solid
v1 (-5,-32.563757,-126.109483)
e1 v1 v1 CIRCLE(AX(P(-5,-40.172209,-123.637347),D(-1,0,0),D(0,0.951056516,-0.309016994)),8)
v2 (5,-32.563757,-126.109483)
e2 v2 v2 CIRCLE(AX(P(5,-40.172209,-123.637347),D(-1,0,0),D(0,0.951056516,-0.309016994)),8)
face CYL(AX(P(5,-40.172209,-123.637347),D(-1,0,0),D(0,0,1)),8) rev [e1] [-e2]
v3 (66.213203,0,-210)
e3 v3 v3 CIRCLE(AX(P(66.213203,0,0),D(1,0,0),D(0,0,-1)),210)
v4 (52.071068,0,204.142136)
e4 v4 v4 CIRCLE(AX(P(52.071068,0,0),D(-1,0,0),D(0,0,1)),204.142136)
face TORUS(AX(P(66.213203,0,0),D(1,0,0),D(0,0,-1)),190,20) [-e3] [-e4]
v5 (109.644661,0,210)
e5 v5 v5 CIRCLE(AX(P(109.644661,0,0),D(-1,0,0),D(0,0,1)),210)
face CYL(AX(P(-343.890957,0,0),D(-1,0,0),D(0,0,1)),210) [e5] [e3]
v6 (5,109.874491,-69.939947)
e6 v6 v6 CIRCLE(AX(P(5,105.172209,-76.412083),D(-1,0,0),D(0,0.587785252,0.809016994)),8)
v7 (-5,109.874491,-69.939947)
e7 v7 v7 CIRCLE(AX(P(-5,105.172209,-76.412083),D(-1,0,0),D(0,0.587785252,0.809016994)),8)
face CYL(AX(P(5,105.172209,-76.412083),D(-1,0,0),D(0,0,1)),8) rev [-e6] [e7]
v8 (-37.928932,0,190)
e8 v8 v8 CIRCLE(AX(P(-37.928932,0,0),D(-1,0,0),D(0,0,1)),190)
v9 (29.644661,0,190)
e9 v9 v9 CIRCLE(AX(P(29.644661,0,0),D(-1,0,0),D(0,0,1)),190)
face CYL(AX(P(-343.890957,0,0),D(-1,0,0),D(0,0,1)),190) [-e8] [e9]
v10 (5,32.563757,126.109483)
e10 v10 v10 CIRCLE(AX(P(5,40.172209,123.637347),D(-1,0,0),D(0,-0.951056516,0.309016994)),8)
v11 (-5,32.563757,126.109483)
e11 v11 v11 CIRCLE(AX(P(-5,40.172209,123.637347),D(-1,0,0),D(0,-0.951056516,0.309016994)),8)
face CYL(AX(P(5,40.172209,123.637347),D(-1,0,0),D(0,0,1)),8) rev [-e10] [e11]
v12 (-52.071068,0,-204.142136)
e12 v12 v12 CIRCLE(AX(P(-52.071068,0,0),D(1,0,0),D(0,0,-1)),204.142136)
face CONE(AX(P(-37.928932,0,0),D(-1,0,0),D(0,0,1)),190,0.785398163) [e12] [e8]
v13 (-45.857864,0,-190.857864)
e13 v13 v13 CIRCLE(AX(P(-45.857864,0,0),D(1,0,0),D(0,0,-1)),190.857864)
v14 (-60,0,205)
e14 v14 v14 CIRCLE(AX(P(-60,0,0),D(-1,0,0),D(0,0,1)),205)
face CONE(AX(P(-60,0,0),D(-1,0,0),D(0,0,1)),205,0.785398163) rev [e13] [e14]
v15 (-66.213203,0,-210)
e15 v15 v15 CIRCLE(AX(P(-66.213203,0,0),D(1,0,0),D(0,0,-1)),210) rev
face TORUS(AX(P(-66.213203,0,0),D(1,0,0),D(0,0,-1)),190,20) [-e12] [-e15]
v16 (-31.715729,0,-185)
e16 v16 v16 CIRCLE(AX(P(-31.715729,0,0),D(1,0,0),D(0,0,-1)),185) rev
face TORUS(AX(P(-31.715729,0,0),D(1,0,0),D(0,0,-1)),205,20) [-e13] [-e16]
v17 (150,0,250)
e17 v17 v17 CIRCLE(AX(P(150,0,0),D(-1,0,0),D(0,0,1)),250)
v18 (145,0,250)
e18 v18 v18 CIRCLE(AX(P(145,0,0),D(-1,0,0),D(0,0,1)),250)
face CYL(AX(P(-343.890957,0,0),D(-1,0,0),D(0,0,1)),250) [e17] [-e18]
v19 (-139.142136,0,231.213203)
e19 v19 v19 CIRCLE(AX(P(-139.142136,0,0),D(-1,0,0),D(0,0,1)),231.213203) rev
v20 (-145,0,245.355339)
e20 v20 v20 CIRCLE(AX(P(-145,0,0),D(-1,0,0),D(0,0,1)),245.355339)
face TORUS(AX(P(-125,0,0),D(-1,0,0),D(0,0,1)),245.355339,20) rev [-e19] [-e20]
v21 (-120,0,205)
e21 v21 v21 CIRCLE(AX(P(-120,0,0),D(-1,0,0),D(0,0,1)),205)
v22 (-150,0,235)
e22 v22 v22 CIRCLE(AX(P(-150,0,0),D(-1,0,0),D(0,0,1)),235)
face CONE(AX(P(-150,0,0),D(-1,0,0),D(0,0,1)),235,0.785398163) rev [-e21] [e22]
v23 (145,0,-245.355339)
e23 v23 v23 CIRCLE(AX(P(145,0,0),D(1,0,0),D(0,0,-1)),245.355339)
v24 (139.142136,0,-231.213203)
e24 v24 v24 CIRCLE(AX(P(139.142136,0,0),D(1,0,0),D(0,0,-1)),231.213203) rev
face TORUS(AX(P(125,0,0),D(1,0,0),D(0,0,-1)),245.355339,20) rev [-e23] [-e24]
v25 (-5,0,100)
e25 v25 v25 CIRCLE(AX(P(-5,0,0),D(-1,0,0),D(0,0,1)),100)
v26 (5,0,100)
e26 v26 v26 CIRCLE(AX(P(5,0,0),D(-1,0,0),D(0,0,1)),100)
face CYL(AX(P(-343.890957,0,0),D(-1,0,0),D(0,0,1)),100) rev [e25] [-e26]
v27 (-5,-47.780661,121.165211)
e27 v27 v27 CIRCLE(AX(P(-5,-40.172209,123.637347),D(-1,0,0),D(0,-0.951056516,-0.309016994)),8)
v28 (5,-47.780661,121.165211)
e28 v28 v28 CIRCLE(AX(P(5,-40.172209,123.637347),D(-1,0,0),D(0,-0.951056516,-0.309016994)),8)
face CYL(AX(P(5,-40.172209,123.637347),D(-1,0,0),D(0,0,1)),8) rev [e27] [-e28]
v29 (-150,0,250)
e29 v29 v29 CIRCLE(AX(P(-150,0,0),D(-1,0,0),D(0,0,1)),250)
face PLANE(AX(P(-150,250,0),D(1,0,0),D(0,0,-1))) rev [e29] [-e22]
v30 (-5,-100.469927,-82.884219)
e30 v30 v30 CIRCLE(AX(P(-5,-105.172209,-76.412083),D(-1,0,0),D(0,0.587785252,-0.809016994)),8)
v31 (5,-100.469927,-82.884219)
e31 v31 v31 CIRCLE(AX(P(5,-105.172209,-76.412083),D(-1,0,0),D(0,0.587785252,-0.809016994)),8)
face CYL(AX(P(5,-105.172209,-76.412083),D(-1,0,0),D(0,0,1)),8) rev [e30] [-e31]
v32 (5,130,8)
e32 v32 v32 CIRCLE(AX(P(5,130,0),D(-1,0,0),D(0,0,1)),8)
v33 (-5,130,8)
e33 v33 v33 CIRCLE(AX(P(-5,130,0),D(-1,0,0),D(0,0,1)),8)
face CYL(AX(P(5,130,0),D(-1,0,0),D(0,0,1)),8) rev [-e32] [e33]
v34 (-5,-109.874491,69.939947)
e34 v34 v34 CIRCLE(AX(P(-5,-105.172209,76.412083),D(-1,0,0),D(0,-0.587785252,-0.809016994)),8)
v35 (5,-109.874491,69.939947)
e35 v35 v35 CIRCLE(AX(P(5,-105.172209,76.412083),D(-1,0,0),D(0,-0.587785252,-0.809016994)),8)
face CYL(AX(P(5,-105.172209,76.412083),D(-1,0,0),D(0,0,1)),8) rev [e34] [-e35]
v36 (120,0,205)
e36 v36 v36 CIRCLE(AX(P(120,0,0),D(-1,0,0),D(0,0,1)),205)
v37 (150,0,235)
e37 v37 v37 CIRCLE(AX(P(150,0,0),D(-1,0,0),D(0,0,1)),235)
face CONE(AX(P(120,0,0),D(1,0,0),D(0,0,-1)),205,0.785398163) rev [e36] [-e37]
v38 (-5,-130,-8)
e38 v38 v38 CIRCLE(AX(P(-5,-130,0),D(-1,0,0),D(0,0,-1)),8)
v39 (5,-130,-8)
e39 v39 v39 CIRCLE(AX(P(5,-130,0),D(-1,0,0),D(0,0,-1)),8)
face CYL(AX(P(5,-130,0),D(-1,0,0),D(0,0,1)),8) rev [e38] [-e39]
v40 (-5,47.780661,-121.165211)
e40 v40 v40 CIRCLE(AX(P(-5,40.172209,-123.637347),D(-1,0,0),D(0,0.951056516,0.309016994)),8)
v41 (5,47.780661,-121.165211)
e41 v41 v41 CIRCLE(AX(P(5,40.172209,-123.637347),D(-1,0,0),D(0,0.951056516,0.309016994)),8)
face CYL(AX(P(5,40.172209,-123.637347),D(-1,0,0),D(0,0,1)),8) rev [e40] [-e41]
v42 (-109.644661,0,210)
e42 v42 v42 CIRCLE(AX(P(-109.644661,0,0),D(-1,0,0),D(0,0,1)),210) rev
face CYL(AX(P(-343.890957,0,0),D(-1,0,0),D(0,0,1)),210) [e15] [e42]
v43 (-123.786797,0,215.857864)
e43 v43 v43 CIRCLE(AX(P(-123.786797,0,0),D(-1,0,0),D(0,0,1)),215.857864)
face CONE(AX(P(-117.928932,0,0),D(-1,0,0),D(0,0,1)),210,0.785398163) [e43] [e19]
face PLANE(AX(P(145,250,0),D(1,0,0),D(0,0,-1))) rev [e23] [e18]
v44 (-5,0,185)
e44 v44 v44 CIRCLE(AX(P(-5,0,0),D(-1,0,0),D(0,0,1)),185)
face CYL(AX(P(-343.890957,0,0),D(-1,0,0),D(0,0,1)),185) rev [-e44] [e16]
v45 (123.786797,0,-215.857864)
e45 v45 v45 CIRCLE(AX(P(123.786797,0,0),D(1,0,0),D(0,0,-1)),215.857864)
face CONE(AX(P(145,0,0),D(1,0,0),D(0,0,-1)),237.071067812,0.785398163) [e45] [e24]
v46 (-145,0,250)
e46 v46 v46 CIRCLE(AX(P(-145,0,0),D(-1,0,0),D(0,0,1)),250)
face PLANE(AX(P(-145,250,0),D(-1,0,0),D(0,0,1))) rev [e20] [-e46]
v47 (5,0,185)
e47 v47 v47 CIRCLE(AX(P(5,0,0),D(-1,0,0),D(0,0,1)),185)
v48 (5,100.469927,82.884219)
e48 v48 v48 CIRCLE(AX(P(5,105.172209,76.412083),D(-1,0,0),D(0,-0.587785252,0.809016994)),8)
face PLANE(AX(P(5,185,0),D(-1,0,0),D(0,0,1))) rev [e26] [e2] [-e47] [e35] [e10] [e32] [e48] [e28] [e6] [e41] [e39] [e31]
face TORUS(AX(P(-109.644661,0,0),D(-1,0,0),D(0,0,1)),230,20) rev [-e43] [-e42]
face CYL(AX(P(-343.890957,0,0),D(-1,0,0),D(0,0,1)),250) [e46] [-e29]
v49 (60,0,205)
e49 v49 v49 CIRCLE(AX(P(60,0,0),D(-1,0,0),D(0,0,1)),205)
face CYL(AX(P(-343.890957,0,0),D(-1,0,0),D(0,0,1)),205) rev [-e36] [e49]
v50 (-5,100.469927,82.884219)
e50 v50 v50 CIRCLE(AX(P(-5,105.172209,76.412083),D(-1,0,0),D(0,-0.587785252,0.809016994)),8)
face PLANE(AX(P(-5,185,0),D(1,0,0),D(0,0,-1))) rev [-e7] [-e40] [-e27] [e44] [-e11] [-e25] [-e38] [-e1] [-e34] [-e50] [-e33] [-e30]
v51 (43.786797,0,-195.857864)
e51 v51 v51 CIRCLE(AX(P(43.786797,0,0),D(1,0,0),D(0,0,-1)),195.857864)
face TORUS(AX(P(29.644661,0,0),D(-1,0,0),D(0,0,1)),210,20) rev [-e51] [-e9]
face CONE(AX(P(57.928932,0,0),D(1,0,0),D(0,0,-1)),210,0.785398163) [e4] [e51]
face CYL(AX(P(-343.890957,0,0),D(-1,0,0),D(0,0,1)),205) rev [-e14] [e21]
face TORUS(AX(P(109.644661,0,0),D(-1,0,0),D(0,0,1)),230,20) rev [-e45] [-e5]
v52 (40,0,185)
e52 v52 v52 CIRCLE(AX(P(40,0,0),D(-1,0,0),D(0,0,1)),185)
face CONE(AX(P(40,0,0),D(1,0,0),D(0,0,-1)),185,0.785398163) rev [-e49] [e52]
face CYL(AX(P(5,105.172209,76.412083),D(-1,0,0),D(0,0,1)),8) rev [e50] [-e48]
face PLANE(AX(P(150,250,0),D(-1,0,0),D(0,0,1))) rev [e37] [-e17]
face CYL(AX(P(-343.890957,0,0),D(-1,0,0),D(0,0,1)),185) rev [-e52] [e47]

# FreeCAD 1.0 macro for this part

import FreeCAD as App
import Part
import Sketcher


def edges_at(feature, points):
    """Names of the edges that pass closest to the given points."""
    edges = feature.Shape.Edges
    near = lambda p: min(range(len(edges)), key=lambda i: edges[i].distToShape(Part.Vertex(*p))[0])
    return sorted({f"Edge{near(p) + 1}" for p in points})

doc = App.newDocument("Part")
body = doc.addObject("PartDesign::Body", "Body")

sketch1 = body.newObject("Sketcher::SketchObject", "Sketch")
sketch1.AttachmentSupport = (doc.getObject("XY_Plane"), [""])
sketch1.MapMode = "FlatFace"
sketch1.addGeometry([
    Part.LineSegment(App.Vector(-150, 250, 0), App.Vector(-150, 235, 0)),
    Part.LineSegment(App.Vector(-150, 235, 0), App.Vector(-120, 205, 0)),
    Part.LineSegment(App.Vector(-120, 205, 0), App.Vector(-60, 205, 0)),
    Part.LineSegment(App.Vector(-60, 205, 0), App.Vector(-40, 185, 0)),
    Part.LineSegment(App.Vector(-40, 185, 0), App.Vector(-5, 185, 0)),
    Part.LineSegment(App.Vector(-5, 185, 0), App.Vector(-5, 100, 0)),
    Part.LineSegment(App.Vector(-5, 100, 0), App.Vector(5, 100, 0)),
    Part.LineSegment(App.Vector(5, 100, 0), App.Vector(5, 185, 0)),
    Part.LineSegment(App.Vector(5, 185, 0), App.Vector(40, 185, 0)),
    Part.LineSegment(App.Vector(40, 185, 0), App.Vector(60, 205, 0)),
    Part.LineSegment(App.Vector(60, 205, 0), App.Vector(120, 205, 0)),
    Part.LineSegment(App.Vector(120, 205, 0), App.Vector(150, 235, 0)),
    Part.LineSegment(App.Vector(150, 235, 0), App.Vector(150, 250, 0)),
    Part.LineSegment(App.Vector(150, 250, 0), App.Vector(145, 250, 0)),
    Part.LineSegment(App.Vector(145, 250, 0), App.Vector(145, 237, 0)),
    Part.LineSegment(App.Vector(145, 237, 0), App.Vector(118, 210, 0)),
    Part.LineSegment(App.Vector(118, 210, 0), App.Vector(58, 210, 0)),
    Part.LineSegment(App.Vector(58, 210, 0), App.Vector(38, 190, 0)),
    Part.LineSegment(App.Vector(38, 190, 0), App.Vector(-38, 190, 0)),
    Part.LineSegment(App.Vector(-38, 190, 0), App.Vector(-58, 210, 0)),
    Part.LineSegment(App.Vector(-58, 210, 0), App.Vector(-118, 210, 0)),
    Part.LineSegment(App.Vector(-118, 210, 0), App.Vector(-145, 237, 0)),
    Part.LineSegment(App.Vector(-145, 237, 0), App.Vector(-145, 250, 0)),
    Part.LineSegment(App.Vector(-145, 250, 0), App.Vector(-150, 250, 0)),
], False)
sketch1.addConstraint([
    Sketcher.Constraint("Coincident", 0, 2, 1, 1),
    Sketcher.Constraint("Coincident", 1, 2, 2, 1),
    Sketcher.Constraint("Coincident", 2, 2, 3, 1),
    Sketcher.Constraint("Coincident", 3, 2, 4, 1),
    Sketcher.Constraint("Coincident", 4, 2, 5, 1),
    Sketcher.Constraint("Coincident", 5, 2, 6, 1),
    Sketcher.Constraint("Coincident", 6, 2, 7, 1),
    Sketcher.Constraint("Coincident", 7, 2, 8, 1),
    Sketcher.Constraint("Coincident", 8, 2, 9, 1),
    Sketcher.Constraint("Coincident", 9, 2, 10, 1),
    Sketcher.Constraint("Coincident", 10, 2, 11, 1),
    Sketcher.Constraint("Coincident", 11, 2, 12, 1),
    Sketcher.Constraint("Coincident", 12, 2, 13, 1),
    Sketcher.Constraint("Coincident", 13, 2, 14, 1),
    Sketcher.Constraint("Coincident", 14, 2, 15, 1),
    Sketcher.Constraint("Coincident", 15, 2, 16, 1),
    Sketcher.Constraint("Coincident", 16, 2, 17, 1),
    Sketcher.Constraint("Coincident", 17, 2, 18, 1),
    Sketcher.Constraint("Coincident", 18, 2, 19, 1),
    Sketcher.Constraint("Coincident", 19, 2, 20, 1),
    Sketcher.Constraint("Coincident", 20, 2, 21, 1),
    Sketcher.Constraint("Coincident", 21, 2, 22, 1),
    Sketcher.Constraint("Coincident", 22, 2, 23, 1),
    Sketcher.Constraint("Coincident", 23, 2, 0, 1),
    Sketcher.Constraint("Vertical", 0),
    Sketcher.Constraint("Horizontal", 2),
    Sketcher.Constraint("Horizontal", 4),
    Sketcher.Constraint("Vertical", 5),
    Sketcher.Constraint("Horizontal", 6),
    Sketcher.Constraint("Vertical", 7),
    Sketcher.Constraint("Horizontal", 8),
    Sketcher.Constraint("Horizontal", 10),
    Sketcher.Constraint("Vertical", 12),
    Sketcher.Constraint("Horizontal", 13),
    Sketcher.Constraint("Vertical", 14),
    Sketcher.Constraint("Horizontal", 16),
    Sketcher.Constraint("Horizontal", 18),
    Sketcher.Constraint("Horizontal", 20),
    Sketcher.Constraint("Vertical", 22),
    Sketcher.Constraint("Horizontal", 23),
    Sketcher.Constraint("Symmetric", 4, 2, 7, 2, -2),
    Sketcher.Constraint("Symmetric", 2, 2, 9, 2, -2),
    Sketcher.Constraint("Symmetric", 0, 2, 11, 2, -2),
    Sketcher.Constraint("Symmetric", 16, 2, 19, 2, -2),
    Sketcher.Constraint("Symmetric", 14, 2, 21, 2, -2),
    Sketcher.Constraint("Parallel", 1, 3),
    Sketcher.Constraint("Perpendicular", 3, 9),
    Sketcher.Constraint("Parallel", 9, 11),
    Sketcher.Constraint("Parallel", 11, 15),
    Sketcher.Constraint("Parallel", 15, 17),
    Sketcher.Constraint("Perpendicular", 17, 19),
    Sketcher.Constraint("Parallel", 19, 21),
    Sketcher.Constraint("Horizontal", 13, 2, 22, 2),
    Sketcher.Constraint("Equal", 4, 8),
    Sketcher.Constraint("Equal", 10, 16),
    Sketcher.Constraint("Equal", 9, 17),
    Sketcher.Constraint("DistanceX", 2, 1, 2, 2, 60.0),
    Sketcher.Constraint("DistanceX", 4, 1, 4, 2, 35.0),
    Sketcher.Constraint("DistanceX", 6, 1, 6, 2, 10.0),
    Sketcher.Constraint("DistanceX", 13, 2, 13, 1, 5.0),
    Sketcher.Constraint("DistanceY", 0, 2, 0, 1, 15.0),
    Sketcher.Constraint("DistanceY", 5, 2, 5, 1, 85.0),
    Sketcher.Constraint("DistanceX", 0, 2, -1, 1, 150.0),
    Sketcher.Constraint("DistanceY", -1, 1, 0, 2, 235.0),
    Sketcher.Constraint("DistanceX", 1, 2, -1, 1, 120.0),
    Sketcher.Constraint("DistanceY", -1, 1, 15, 2, 210.0),
    Sketcher.Constraint("Distance", 15, 38.284271),
])
revolution = body.newObject("PartDesign::Revolution", "Revolution")
revolution.Profile = sketch1
revolution.ReferenceAxis = (sketch1, ["H_Axis"])
revolution.Angle = 360
doc.recompute()

fillet = body.newObject("PartDesign::Fillet", "Fillet")
fillet.Base = (revolution, edges_at(revolution, [
    (-40, 0, -185),
    (145, 0, -237.071),
    (117.929, 0, -210),
    (57.929, 0, -210),
    (37.929, 0, -190),
    (-57.929, 0, -210),
    (-117.929, 0, -210),
    (-145, 0, -237.071),
]))
fillet.Radius = 20

sketch2 = body.newObject("Sketcher::SketchObject", "Sketch001")
sketch2.AttachmentSupport = (doc.getObject("YZ_Plane"), [""])
sketch2.MapMode = "FlatFace"
sketch2.AttachmentOffset = App.Placement(App.Vector(0, 0, -5), App.Rotation())
sketch2.addGeometry(Part.Circle(App.Vector(130, 0, 0), App.Vector(0, 0, 1), 8), False)
sketch2.addConstraint([
    Sketcher.Constraint("PointOnObject", 0, 3, -1),
    Sketcher.Constraint("Diameter", 0, 16.0),
    Sketcher.Constraint("DistanceX", -1, 1, 0, 3, 130.0),
])
pocket1 = body.newObject("PartDesign::Pocket", "Pocket")
pocket1.Profile = sketch2
pocket1.Length = 10
pocket1.Reversed = True
doc.recompute()

polarpattern = body.newObject("PartDesign::PolarPattern", "PolarPattern")
polarpattern.Originals = [pocket1]
polarpattern.Axis = (doc.getObject("X_Axis"), [""])
polarpattern.Angle = 360
polarpattern.Occurrences = 10
body.Tip = polarpattern

doc.recompute()
